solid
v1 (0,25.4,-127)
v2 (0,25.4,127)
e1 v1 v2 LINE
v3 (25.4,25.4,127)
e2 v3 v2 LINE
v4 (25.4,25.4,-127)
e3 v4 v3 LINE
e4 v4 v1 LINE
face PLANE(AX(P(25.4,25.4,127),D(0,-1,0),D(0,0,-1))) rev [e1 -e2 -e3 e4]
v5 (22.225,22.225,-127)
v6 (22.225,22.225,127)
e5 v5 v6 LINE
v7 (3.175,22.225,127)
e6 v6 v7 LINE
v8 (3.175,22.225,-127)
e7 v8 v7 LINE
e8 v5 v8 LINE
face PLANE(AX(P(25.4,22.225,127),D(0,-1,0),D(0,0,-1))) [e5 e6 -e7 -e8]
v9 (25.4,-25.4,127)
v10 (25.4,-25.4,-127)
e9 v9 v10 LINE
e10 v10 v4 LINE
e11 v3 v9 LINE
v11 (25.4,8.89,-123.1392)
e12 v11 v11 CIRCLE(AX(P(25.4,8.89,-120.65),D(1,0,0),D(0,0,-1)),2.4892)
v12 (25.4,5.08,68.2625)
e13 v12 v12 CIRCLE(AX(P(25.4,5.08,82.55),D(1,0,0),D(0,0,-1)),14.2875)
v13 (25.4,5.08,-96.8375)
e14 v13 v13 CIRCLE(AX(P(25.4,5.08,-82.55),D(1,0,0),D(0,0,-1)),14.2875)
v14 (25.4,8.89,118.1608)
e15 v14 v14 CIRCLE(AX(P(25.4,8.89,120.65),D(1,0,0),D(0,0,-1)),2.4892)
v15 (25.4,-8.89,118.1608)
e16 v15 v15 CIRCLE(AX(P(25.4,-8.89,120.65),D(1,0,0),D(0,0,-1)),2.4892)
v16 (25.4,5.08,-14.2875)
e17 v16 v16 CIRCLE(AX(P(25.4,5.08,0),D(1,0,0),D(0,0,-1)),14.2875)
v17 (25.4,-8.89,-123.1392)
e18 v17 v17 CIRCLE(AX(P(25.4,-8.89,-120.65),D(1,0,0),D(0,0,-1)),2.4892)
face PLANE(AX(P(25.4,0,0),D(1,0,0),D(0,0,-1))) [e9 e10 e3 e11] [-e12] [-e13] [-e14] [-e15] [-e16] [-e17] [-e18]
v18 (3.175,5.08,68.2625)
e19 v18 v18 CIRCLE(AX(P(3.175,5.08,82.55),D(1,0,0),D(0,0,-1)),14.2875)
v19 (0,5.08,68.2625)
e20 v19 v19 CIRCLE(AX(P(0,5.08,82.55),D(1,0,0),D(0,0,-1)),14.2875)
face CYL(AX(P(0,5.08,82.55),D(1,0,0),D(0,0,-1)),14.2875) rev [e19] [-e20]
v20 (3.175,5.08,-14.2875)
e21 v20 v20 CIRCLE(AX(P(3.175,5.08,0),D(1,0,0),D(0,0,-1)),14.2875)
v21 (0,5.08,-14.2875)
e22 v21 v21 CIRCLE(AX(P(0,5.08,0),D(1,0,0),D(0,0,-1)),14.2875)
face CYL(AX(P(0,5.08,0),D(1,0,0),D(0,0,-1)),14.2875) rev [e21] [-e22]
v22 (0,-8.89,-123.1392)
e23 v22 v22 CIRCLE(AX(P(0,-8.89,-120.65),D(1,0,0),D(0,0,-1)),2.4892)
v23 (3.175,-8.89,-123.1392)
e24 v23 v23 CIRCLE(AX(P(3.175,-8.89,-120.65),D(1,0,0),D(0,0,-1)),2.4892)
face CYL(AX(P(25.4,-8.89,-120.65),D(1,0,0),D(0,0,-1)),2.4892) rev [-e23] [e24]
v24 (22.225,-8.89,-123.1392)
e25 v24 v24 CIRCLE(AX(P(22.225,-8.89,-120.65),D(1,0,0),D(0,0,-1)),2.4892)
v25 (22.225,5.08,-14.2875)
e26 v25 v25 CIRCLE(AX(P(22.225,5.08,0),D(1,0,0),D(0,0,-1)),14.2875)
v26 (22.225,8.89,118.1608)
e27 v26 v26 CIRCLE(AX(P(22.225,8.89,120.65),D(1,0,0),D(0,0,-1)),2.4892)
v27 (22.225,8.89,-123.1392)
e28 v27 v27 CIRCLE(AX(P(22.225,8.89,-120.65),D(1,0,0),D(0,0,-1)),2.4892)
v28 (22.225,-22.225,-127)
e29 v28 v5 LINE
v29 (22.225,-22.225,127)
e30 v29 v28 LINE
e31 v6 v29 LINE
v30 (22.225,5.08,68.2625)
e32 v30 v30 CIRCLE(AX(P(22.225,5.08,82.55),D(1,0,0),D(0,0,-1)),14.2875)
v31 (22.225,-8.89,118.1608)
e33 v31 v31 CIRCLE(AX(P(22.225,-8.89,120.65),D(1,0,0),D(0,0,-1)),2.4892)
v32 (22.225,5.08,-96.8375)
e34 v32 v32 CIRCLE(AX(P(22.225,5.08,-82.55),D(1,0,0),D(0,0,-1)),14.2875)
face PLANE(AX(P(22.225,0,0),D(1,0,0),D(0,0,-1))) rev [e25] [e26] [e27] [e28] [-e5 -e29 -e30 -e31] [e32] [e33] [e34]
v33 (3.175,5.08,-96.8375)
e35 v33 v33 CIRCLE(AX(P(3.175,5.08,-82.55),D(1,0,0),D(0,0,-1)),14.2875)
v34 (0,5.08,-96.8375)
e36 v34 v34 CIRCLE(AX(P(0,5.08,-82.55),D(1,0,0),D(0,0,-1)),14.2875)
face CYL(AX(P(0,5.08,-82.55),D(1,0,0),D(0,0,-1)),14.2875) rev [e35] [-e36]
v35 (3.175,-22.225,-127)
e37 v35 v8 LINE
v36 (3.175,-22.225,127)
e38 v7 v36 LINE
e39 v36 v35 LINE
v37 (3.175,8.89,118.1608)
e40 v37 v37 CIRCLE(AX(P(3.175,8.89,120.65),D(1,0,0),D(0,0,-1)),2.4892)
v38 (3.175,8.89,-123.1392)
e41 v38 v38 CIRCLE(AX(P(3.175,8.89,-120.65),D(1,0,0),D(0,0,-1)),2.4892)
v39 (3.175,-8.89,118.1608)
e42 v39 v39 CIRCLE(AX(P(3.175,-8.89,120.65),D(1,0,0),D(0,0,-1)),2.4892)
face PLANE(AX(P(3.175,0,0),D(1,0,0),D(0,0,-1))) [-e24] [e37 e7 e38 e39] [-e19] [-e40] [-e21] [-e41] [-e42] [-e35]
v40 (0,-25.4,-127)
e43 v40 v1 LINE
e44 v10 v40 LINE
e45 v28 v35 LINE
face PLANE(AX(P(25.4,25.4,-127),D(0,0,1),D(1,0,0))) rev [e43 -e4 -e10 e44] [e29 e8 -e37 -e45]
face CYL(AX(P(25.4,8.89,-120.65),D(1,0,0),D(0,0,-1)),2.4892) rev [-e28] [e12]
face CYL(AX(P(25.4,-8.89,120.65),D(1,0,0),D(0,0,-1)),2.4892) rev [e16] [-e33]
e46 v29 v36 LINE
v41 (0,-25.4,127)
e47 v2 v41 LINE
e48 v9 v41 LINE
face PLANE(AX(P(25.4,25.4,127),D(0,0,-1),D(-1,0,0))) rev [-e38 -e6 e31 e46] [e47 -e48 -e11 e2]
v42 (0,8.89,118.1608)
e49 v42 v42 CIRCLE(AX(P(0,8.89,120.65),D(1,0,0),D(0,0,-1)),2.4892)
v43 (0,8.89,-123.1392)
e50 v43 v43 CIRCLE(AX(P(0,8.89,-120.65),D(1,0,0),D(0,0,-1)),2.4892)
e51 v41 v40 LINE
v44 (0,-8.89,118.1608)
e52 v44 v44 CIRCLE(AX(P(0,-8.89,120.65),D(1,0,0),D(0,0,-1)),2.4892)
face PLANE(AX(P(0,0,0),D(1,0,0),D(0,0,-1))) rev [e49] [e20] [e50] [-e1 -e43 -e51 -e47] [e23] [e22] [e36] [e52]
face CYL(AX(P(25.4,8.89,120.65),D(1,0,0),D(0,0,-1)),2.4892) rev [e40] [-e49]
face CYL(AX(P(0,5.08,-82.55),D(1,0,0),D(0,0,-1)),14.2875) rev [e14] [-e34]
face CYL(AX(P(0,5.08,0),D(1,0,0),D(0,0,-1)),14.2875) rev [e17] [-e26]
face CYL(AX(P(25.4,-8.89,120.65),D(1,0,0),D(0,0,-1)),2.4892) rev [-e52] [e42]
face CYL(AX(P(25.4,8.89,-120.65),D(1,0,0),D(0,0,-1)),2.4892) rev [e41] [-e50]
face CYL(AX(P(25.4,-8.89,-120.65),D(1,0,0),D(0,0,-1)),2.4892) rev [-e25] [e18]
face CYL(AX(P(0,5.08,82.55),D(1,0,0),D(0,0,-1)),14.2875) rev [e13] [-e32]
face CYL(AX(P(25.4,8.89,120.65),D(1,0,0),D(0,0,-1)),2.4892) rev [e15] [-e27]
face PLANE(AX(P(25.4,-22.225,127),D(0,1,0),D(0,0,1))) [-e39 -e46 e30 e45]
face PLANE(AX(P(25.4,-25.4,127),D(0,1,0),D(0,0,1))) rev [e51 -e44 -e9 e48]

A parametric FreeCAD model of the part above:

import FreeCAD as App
import Part
import Sketcher
Q = App.Units.Quantity


def faces_at(feature, points):
    """Names of the faces that lie closest to the given points."""
    faces = feature.Shape.Faces
    near = lambda p: min(range(len(faces)), key=lambda i: faces[i].distToShape(Part.Vertex(*p))[0])
    return sorted({f"Face{near(p) + 1}" for p in points})


def add_polygon(sketch, points):
    """Adds a closed chain of lines whose ends are joined by coincident constraints."""
    first, n = sketch.GeometryCount, len(points)
    for a, b in zip(points, points[1:] + points[:1]):
        sketch.addGeometry(Part.LineSegment(App.Vector(*a, 0), App.Vector(*b, 0)), False)
    for i in range(n):
        sketch.addConstraint(Sketcher.Constraint("Coincident", first + i, 2, first + (i + 1) % n, 1))

doc = App.newDocument("Part")
body = doc.addObject("PartDesign::Body", "Body")

sketch1 = body.newObject("Sketcher::SketchObject", "Sketch")
sketch1.AttachmentSupport = (doc.getObject("YZ_Plane"), [""])
sketch1.MapMode = "FlatFace"
add_polygon(sketch1, [(25, 127), (-25, 127), (-25, -127), (25, -127)])
sketch1.addConstraint([
    Sketcher.Constraint("Horizontal", 0),
    Sketcher.Constraint("Vertical", 1),
    Sketcher.Constraint("Horizontal", 2),
    Sketcher.Constraint("Vertical", 3),
    Sketcher.Constraint("Symmetric", 0, 2, 2, 2, -1, 1),
    Sketcher.Constraint("DistanceX", 0, 2, 0, 1, Q("2 in")),
    Sketcher.Constraint("DistanceY", 1, 2, 1, 1, Q("10 in")),
])
pad1 = body.newObject("PartDesign::Pad", "Pad")
pad1.Profile = sketch1
pad1.Length = Q("1 in")
doc.recompute()

thickness = body.newObject("PartDesign::Thickness", "Thickness")
thickness.Base = (pad1, faces_at(pad1, [(12.7, 0, 127), (12.7, 0, -127)]))
thickness.Value = Q("0.125 in")
thickness.Reversed = True
thickness.Join = "Intersection"

sketch2 = body.newObject("Sketcher::SketchObject", "Sketch001")
sketch2.AttachmentSupport = (doc.getObject("YZ_Plane"), [""])
sketch2.MapMode = "FlatFace"
sketch2.AttachmentOffset = App.Placement(App.Vector(0, 0, 1 * 25.4), App.Rotation())
sketch2.addGeometry([
    Part.Circle(App.Vector(5, 0, 0), App.Vector(0, 0, 1), 14),
    Part.Circle(App.Vector(5, 83, 0), App.Vector(0, 0, 1), 14),
    Part.Circle(App.Vector(5, -83, 0), App.Vector(0, 0, 1), 14),
], False)
sketch2.addConstraint([
    Sketcher.Constraint("Equal", 0, 1),
    Sketcher.Constraint("Equal", 1, 2),
    Sketcher.Constraint("Symmetric", 1, 3, 2, 3, -1),
    Sketcher.Constraint("PointOnObject", 0, 3, -1),
    Sketcher.Constraint("Vertical", 0, 3, 1, 3),
    Sketcher.Constraint("Diameter", 0, Q("1.125 in")),
    Sketcher.Constraint("DistanceX", -1, 1, 0, 3, Q("0.2 in")),
    Sketcher.Constraint("DistanceY", 2, 3, 1, 3, Q("6.5 in")),
])
pocket1 = body.newObject("PartDesign::Pocket", "Pocket")
pocket1.Profile = sketch2
pocket1.Type = "ThroughAll"

sketch3 = body.newObject("Sketcher::SketchObject", "Sketch002")
sketch3.AttachmentSupport = (doc.getObject("YZ_Plane"), [""])
sketch3.MapMode = "FlatFace"
sketch3.AttachmentOffset = App.Placement(App.Vector(0, 0, 1 * 25.4), App.Rotation())
sketch3.addGeometry([
    Part.Circle(App.Vector(8.9, 120.7, 0), App.Vector(0, 0, 1), 2.5),
    Part.Circle(App.Vector(-8.9, 120.7, 0), App.Vector(0, 0, 1), 2.5),
], False)
sketch3.addConstraint([
    Sketcher.Constraint("Equal", 0, 1),
    Sketcher.Constraint("Symmetric", 0, 3, 1, 3, -2),
    Sketcher.Constraint("Diameter", 0, Q("0.196 in")),
    Sketcher.Constraint("DistanceX", 1, 3, 0, 3, Q("0.7 in")),
    Sketcher.Constraint("DistanceY", -1, 1, 0, 3, Q("4.75 in")),
])
doc.recompute()
hole = body.newObject("PartDesign::Hole", "Hole")
hole.Profile = sketch3
hole.ThreadType = "None"
hole.Diameter = Q("0.196 in")
hole.DepthType = "ThroughAll"
doc.recompute()

mirrored = body.newObject("PartDesign::Mirrored", "Mirrored")
mirrored.Originals = [hole]
mirrored.MirrorPlane = (doc.getObject("XY_Plane"), [""])
body.Tip = mirrored

doc.recompute()
